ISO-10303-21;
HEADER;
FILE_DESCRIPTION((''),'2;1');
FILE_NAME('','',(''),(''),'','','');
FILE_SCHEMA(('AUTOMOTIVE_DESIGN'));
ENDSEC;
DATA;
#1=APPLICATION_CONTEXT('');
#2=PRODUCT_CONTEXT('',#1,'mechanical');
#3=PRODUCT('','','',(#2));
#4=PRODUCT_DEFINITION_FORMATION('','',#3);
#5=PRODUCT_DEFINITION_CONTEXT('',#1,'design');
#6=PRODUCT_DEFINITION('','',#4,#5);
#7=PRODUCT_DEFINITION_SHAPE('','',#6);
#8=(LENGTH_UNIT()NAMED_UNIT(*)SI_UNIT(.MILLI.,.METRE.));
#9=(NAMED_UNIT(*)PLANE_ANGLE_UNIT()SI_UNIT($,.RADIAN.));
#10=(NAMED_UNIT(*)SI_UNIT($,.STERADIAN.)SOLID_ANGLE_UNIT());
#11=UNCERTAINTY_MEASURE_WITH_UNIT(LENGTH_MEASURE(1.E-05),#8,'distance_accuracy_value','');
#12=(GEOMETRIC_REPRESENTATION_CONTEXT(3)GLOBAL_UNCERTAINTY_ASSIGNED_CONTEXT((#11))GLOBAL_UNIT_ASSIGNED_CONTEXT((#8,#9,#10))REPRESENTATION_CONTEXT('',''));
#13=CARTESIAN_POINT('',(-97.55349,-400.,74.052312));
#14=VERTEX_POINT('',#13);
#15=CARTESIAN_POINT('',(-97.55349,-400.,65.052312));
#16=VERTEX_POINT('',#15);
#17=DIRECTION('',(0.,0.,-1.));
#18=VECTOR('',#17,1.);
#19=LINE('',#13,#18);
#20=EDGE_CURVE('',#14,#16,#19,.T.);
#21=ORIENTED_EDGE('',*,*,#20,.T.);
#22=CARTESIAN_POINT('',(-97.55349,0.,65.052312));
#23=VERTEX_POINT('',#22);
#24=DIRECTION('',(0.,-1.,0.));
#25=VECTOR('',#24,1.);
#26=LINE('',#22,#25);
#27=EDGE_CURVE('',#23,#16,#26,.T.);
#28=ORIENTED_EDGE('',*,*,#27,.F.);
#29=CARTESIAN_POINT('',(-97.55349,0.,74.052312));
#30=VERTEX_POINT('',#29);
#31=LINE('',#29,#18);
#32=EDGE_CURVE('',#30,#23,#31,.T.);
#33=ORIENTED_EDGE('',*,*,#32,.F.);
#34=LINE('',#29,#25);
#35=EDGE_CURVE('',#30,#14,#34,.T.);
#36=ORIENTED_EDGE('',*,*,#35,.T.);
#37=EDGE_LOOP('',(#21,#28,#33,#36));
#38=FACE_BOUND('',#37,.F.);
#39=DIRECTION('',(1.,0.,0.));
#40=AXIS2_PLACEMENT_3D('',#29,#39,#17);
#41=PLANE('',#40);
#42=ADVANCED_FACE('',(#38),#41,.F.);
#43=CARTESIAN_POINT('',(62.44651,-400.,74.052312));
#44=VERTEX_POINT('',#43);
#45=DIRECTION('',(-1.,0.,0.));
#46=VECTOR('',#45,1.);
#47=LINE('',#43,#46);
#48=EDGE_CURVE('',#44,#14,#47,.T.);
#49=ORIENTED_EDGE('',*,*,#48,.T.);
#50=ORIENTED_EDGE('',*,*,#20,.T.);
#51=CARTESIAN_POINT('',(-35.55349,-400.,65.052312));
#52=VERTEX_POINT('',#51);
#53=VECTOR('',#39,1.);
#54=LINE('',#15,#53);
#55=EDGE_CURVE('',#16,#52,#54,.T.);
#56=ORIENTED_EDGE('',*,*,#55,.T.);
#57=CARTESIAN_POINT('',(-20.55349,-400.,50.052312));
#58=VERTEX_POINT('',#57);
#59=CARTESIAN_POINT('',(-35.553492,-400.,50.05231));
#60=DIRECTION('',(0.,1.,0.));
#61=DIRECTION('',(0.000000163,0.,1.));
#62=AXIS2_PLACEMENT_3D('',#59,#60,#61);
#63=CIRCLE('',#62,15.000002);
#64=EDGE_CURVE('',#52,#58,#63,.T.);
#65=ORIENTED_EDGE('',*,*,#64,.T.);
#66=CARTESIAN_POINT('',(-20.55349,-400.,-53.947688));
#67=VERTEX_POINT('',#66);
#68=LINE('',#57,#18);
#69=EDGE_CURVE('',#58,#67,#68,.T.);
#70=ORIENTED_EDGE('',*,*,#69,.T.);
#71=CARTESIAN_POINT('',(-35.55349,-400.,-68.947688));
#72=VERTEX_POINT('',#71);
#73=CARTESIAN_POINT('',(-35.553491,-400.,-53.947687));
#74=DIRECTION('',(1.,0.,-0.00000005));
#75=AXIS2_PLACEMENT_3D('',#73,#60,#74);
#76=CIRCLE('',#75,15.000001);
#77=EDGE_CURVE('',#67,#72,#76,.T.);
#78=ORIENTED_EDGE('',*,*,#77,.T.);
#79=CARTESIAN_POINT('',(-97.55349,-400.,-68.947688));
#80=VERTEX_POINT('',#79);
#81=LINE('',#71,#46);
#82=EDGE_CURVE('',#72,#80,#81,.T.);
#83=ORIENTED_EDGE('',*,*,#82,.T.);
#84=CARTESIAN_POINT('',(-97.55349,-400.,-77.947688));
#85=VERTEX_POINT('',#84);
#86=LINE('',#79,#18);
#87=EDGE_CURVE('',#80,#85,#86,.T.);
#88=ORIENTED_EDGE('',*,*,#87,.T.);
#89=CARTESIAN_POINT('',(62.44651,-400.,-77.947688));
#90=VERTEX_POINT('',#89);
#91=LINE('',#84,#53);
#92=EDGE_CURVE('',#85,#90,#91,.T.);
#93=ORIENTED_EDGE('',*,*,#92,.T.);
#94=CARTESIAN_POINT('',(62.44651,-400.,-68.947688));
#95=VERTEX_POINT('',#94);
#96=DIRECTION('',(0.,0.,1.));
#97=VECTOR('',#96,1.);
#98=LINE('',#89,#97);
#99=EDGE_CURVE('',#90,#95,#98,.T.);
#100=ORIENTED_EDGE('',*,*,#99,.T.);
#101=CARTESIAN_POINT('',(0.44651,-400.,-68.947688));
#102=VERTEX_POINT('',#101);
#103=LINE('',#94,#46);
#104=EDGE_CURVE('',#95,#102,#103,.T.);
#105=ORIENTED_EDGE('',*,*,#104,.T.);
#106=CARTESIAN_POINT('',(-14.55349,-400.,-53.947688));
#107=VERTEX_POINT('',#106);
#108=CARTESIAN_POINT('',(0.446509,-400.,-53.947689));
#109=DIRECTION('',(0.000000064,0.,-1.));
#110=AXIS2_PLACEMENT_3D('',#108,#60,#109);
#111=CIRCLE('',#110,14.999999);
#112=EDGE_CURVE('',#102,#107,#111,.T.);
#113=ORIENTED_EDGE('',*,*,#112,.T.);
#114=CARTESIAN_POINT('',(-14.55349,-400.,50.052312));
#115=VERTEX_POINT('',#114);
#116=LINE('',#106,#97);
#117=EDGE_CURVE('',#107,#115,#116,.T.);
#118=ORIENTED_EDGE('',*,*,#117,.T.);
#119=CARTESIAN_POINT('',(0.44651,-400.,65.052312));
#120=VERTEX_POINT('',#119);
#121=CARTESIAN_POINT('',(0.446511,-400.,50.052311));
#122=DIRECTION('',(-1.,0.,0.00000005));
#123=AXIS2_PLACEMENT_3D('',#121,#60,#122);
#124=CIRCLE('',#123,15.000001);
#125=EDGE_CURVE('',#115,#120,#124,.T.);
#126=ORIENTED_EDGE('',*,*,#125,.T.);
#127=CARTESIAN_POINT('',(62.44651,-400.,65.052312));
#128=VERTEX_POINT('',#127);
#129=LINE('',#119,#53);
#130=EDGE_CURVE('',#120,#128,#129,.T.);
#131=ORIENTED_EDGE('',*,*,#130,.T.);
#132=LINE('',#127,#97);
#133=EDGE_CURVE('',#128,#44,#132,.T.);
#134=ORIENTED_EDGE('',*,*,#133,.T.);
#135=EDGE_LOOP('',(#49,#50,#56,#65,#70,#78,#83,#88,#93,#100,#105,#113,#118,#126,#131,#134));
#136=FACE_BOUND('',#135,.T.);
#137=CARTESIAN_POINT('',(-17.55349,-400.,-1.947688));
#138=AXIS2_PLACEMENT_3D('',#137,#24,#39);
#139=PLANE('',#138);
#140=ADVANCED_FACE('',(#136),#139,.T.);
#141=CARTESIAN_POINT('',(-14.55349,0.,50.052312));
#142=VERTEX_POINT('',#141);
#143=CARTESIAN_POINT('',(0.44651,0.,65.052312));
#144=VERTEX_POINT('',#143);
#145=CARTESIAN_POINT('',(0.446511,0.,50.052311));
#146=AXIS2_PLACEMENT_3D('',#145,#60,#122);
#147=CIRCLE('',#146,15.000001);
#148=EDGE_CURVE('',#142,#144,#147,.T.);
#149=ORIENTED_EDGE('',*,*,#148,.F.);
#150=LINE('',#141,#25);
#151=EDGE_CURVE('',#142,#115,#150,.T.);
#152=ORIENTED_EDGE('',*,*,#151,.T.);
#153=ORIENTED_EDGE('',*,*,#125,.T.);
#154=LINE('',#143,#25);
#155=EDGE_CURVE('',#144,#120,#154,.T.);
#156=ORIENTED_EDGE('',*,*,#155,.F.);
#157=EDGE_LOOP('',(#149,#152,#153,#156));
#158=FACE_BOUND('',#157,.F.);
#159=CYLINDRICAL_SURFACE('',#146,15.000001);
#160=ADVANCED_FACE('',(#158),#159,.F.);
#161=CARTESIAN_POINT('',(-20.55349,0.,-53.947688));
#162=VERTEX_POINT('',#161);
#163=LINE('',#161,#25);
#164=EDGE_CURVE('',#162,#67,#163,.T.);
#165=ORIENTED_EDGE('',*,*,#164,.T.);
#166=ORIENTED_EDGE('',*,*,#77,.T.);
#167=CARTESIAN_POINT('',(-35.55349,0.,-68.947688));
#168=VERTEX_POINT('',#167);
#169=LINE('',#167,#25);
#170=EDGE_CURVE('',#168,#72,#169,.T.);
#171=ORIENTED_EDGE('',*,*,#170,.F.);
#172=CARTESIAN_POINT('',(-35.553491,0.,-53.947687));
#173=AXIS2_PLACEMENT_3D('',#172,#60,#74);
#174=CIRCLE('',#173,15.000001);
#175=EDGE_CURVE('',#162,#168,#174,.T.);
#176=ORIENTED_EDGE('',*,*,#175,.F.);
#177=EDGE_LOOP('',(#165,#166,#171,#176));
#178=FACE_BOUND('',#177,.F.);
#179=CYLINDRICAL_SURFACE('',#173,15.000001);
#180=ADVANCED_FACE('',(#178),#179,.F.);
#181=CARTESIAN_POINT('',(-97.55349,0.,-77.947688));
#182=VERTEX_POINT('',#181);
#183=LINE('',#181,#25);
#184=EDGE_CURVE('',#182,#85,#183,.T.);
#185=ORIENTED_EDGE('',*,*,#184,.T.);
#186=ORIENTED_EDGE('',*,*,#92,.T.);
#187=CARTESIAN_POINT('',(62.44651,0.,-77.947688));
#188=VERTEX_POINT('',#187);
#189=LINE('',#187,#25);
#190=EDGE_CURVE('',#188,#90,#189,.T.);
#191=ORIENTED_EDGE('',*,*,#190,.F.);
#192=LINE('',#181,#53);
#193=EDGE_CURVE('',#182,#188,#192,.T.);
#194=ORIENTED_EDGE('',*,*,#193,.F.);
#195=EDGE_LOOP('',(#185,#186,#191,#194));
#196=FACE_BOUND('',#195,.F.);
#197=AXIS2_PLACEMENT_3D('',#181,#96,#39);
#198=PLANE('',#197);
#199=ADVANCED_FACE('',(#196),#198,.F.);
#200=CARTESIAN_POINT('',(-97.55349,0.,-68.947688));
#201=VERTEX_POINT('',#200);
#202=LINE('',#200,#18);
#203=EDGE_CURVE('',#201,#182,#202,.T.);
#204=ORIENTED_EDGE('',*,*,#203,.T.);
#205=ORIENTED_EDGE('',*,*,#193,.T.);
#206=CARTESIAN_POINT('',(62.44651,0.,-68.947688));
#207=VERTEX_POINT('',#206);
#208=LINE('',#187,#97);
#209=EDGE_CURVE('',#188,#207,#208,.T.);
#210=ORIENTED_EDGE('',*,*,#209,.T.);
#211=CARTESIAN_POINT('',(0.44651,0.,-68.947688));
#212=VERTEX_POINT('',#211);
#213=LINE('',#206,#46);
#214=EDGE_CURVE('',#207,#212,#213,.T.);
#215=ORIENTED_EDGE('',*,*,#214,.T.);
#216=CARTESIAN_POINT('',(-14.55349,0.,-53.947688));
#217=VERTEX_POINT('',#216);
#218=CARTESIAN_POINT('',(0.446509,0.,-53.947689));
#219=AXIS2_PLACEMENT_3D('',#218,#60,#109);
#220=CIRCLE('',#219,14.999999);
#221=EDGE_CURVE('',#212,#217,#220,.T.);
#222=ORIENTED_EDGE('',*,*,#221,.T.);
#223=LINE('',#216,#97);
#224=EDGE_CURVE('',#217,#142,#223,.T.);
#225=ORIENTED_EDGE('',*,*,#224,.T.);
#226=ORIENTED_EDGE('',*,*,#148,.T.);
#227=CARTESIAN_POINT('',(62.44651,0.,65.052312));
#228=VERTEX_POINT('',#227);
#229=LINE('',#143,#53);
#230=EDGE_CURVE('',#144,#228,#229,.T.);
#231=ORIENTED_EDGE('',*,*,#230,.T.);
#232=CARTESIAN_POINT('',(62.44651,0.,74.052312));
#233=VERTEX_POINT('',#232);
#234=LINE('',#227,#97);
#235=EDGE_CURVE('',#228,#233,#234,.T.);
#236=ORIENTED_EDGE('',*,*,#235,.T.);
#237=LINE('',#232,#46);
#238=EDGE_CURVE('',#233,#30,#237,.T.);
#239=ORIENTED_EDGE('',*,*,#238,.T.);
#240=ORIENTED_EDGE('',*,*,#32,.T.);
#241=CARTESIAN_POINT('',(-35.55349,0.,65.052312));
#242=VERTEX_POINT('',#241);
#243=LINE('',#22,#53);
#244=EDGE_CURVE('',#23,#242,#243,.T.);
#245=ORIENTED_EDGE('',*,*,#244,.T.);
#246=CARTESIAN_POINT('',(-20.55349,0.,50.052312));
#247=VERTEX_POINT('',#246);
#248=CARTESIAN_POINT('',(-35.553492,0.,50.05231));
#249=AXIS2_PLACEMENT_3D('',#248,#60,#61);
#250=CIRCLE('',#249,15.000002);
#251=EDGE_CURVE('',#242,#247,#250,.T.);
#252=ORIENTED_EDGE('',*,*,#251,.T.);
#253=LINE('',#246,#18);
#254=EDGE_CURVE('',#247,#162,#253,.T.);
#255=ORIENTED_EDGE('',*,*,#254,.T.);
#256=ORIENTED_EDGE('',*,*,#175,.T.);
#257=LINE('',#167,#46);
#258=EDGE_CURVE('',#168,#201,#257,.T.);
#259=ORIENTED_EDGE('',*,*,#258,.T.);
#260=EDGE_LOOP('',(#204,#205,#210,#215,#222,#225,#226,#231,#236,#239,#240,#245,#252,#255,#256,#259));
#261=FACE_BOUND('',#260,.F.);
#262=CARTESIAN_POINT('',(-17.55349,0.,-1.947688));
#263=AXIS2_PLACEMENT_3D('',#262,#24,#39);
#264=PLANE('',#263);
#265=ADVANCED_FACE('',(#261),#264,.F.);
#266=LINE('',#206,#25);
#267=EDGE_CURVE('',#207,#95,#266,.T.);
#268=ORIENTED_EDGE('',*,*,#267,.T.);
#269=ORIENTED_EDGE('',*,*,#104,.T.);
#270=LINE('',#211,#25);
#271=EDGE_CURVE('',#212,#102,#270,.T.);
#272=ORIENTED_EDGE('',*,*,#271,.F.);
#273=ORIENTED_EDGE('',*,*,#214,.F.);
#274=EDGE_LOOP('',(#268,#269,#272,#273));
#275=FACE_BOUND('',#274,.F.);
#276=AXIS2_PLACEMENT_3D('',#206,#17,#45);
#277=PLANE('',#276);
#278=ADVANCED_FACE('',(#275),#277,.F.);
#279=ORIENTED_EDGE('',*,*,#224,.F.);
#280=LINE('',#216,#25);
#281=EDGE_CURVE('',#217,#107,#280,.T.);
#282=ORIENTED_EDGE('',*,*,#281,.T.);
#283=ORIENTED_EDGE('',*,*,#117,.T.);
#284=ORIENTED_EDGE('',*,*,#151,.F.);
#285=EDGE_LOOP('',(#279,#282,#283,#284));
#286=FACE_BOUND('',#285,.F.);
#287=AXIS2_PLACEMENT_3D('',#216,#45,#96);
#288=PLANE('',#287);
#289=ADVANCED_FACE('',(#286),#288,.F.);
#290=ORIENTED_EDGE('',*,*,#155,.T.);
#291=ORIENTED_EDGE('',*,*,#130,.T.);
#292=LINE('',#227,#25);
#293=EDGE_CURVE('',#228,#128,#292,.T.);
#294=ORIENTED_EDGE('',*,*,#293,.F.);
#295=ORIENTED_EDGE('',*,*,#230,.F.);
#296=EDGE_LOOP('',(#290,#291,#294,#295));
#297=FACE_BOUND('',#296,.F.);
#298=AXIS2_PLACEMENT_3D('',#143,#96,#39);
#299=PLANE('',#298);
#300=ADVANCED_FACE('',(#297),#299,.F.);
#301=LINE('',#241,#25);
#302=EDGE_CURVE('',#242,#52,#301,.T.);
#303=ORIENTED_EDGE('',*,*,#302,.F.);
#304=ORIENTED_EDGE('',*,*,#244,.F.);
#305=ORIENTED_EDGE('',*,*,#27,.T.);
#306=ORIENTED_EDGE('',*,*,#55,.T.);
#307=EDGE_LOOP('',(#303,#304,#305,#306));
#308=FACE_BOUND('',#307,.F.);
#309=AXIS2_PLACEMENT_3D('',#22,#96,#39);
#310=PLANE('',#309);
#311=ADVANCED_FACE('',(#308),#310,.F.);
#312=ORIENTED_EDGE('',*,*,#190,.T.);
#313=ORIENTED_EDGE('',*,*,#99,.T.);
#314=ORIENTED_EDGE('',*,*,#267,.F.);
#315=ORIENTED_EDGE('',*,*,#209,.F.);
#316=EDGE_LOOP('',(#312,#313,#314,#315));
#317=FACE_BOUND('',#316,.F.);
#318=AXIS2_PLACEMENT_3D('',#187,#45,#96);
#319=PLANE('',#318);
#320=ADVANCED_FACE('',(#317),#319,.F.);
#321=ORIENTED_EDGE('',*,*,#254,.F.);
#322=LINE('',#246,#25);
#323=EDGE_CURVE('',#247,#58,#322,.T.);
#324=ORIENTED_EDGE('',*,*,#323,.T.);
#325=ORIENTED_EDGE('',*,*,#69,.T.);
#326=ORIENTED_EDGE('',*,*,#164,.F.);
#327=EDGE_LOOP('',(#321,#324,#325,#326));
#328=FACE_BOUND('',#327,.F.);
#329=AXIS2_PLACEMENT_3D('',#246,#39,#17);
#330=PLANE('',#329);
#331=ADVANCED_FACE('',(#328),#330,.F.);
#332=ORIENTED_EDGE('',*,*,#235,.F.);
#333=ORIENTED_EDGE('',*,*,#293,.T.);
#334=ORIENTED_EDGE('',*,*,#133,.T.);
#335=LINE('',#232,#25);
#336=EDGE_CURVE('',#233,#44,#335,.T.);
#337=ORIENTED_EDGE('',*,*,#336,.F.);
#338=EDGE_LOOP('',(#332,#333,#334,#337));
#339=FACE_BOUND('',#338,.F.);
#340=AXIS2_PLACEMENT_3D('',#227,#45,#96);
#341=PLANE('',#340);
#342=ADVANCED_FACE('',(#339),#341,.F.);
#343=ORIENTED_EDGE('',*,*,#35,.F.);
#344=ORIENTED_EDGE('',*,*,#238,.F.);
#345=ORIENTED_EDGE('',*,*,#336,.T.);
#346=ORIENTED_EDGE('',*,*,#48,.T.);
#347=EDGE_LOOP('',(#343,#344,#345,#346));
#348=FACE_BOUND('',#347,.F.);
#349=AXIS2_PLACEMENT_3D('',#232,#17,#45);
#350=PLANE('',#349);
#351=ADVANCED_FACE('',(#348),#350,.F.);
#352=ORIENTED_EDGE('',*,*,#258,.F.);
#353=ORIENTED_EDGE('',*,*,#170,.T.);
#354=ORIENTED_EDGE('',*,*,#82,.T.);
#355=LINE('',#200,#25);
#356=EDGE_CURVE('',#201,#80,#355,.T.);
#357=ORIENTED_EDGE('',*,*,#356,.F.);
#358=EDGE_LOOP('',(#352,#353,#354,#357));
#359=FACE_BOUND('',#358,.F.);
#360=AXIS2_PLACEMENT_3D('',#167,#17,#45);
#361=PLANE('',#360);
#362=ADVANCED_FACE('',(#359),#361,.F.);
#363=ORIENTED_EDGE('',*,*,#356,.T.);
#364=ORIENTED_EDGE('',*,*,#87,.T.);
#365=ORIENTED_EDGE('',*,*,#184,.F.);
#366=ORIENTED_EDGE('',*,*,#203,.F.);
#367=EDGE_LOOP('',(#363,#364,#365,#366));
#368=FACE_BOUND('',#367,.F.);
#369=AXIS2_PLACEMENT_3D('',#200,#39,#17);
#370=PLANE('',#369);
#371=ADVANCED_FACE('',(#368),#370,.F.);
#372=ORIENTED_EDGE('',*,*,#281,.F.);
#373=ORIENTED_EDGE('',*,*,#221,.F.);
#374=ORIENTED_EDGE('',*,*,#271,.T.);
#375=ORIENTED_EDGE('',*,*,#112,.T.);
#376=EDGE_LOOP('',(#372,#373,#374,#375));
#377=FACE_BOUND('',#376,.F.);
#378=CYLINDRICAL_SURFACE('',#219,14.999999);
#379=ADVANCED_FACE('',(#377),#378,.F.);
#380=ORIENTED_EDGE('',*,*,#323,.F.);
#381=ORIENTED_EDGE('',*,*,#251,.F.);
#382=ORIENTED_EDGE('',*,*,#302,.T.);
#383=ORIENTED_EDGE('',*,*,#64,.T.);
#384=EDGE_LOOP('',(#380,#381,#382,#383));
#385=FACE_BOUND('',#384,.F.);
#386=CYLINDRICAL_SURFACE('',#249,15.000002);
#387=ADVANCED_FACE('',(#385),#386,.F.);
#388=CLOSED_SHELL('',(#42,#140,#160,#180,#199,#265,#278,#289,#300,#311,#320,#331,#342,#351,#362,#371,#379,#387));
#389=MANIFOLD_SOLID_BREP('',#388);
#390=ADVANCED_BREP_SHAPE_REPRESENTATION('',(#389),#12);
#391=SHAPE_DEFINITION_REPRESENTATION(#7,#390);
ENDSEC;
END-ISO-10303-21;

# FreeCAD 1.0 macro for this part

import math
import FreeCAD as App
import Part
import Sketcher
Q = App.Units.Quantity

doc = App.newDocument("Part")
body = doc.addObject("PartDesign::Body", "Body")

# Sketch on XZ plane
sketch1 = body.newObject("Sketcher::SketchObject", "Sketch")
sketch1.AttachmentSupport = (doc.getObject("XZ_Plane"), [""])
sketch1.MapMode = "FlatFace"
sketch1.addGeometry(Part.LineSegment(App.Vector(-35.55349, -68.947688, 0), App.Vector(-97.55349, -68.947688, 0)), False)
sketch1.addGeometry(Part.LineSegment(App.Vector(-97.55349, -68.947688, 0), App.Vector(-97.55349, -77.947688, 0)), False)
sketch1.addGeometry(Part.LineSegment(App.Vector(-97.55349, -77.947688, 0), App.Vector(62.44651, -77.947688, 0)), False)
sketch1.addGeometry(Part.LineSegment(App.Vector(62.44651, -77.947688, 0), App.Vector(62.44651, -68.947688, 0)), False)
sketch1.addGeometry(Part.LineSegment(App.Vector(62.44651, -68.947688, 0), App.Vector(0.44651, -68.947688, 0)), False)
sketch1.addGeometry(Part.ArcOfCircle(Part.Circle(App.Vector(0.446509, -53.947689, 0), App.Vector(0, 0, 1), 14.999999), math.radians(179.999996), math.radians(270.000004)), False)
sketch1.addGeometry(Part.LineSegment(App.Vector(-14.55349, -53.947688, 0), App.Vector(-14.55349, 50.052312, 0)), False)
sketch1.addGeometry(Part.ArcOfCircle(Part.Circle(App.Vector(0.446511, 50.052311, 0), App.Vector(0, 0, 1), 15.000001), math.radians(90.000003), math.radians(179.999997)), False)
sketch1.addGeometry(Part.LineSegment(App.Vector(0.44651, 65.052312, 0), App.Vector(62.44651, 65.052312, 0)), False)
sketch1.addGeometry(Part.LineSegment(App.Vector(62.44651, 65.052312, 0), App.Vector(62.44651, 74.052312, 0)), False)
sketch1.addGeometry(Part.LineSegment(App.Vector(62.44651, 74.052312, 0), App.Vector(-97.55349, 74.052312, 0)), False)
sketch1.addGeometry(Part.LineSegment(App.Vector(-97.55349, 74.052312, 0), App.Vector(-97.55349, 65.052312, 0)), False)
sketch1.addGeometry(Part.LineSegment(App.Vector(-97.55349, 65.052312, 0), App.Vector(-35.55349, 65.052312, 0)), False)
sketch1.addGeometry(Part.ArcOfCircle(Part.Circle(App.Vector(-35.553492, 50.05231, 0), App.Vector(0, 0, 1), 15.000002), math.radians(0.000009), math.radians(89.999991)), False)
sketch1.addGeometry(Part.LineSegment(App.Vector(-20.55349, 50.052312, 0), App.Vector(-20.55349, -53.947688, 0)), False)
sketch1.addGeometry(Part.ArcOfCircle(Part.Circle(App.Vector(-35.553491, -53.947687, 0), App.Vector(0, 0, 1), 15.000001), math.radians(-89.999997), math.radians(-0.000003)), False)
sketch1.addConstraint(Sketcher.Constraint("Coincident", 0, 2, 1, 1))
sketch1.addConstraint(Sketcher.Constraint("Coincident", 1, 2, 2, 1))
sketch1.addConstraint(Sketcher.Constraint("Coincident", 2, 2, 3, 1))
sketch1.addConstraint(Sketcher.Constraint("Coincident", 3, 2, 4, 1))
sketch1.addConstraint(Sketcher.Constraint("Tangent", 4, 2, 5, 2))
sketch1.addConstraint(Sketcher.Constraint("Tangent", 5, 1, 6, 1))
sketch1.addConstraint(Sketcher.Constraint("Tangent", 6, 2, 7, 2))
sketch1.addConstraint(Sketcher.Constraint("Tangent", 7, 1, 8, 1))
sketch1.addConstraint(Sketcher.Constraint("Coincident", 8, 2, 9, 1))
sketch1.addConstraint(Sketcher.Constraint("Coincident", 9, 2, 10, 1))
sketch1.addConstraint(Sketcher.Constraint("Coincident", 10, 2, 11, 1))
sketch1.addConstraint(Sketcher.Constraint("Coincident", 11, 2, 12, 1))
sketch1.addConstraint(Sketcher.Constraint("Tangent", 12, 2, 13, 2))
sketch1.addConstraint(Sketcher.Constraint("Tangent", 13, 1, 14, 1))
sketch1.addConstraint(Sketcher.Constraint("Tangent", 14, 2, 15, 2))
sketch1.addConstraint(Sketcher.Constraint("Tangent", 15, 1, 0, 1))
sketch1.addConstraint(Sketcher.Constraint("Horizontal", 0))
sketch1.addConstraint(Sketcher.Constraint("Vertical", 1))
sketch1.addConstraint(Sketcher.Constraint("Horizontal", 2))
sketch1.addConstraint(Sketcher.Constraint("Vertical", 3))
sketch1.addConstraint(Sketcher.Constraint("Horizontal", 4))
sketch1.addConstraint(Sketcher.Constraint("Vertical", 6))
sketch1.addConstraint(Sketcher.Constraint("Horizontal", 8))
sketch1.addConstraint(Sketcher.Constraint("Vertical", 9))
sketch1.addConstraint(Sketcher.Constraint("Horizontal", 10))
sketch1.addConstraint(Sketcher.Constraint("Vertical", 11))
sketch1.addConstraint(Sketcher.Constraint("Horizontal", 12))
sketch1.addConstraint(Sketcher.Constraint("Vertical", 14))
sketch1.addConstraint(Sketcher.Constraint("Equal", 5, 7))
sketch1.addConstraint(Sketcher.Constraint("Equal", 7, 13))
sketch1.addConstraint(Sketcher.Constraint("Equal", 13, 15))
sketch1.addConstraint(Sketcher.Constraint("Horizontal", 7, 3, 13, 3))
sketch1.addConstraint(Sketcher.Constraint("Horizontal", 5, 3, 15, 3))
sketch1.addConstraint(Sketcher.Constraint("Vertical", 3, 2, 8, 2))
sketch1.addConstraint(Sketcher.Constraint("Vertical", 1, 2, 10, 2))
sketch1.addConstraint(Sketcher.Constraint("Equal", 0, 4))
sketch1.addConstraint(Sketcher.Constraint("Equal", 3, 9))
sketch1.addConstraint(Sketcher.Constraint("Radius", 5, Q("14.999999 mm")))
sketch1.addConstraint(Sketcher.Constraint("DistanceX", 0, 2, 0, 1, Q("62 mm")))
sketch1.addConstraint(Sketcher.Constraint("DistanceX", 2, 1, 2, 2, Q("160 mm")))
sketch1.addConstraint(Sketcher.Constraint("DistanceY", 1, 2, 1, 1, Q("9 mm")))
sketch1.addConstraint(Sketcher.Constraint("DistanceY", 6, 1, 6, 2, Q("104 mm")))
sketch1.addConstraint(Sketcher.Constraint("DistanceX", -1, 1, 5, 3, Q("0.446509 mm")))
sketch1.addConstraint(Sketcher.Constraint("DistanceY", 5, 3, -1, 1, Q("53.947689 mm")))
pad1 = body.newObject("PartDesign::Pad", "Pad")
pad1.Profile = sketch1
pad1.Length = 400

doc.recompute()
